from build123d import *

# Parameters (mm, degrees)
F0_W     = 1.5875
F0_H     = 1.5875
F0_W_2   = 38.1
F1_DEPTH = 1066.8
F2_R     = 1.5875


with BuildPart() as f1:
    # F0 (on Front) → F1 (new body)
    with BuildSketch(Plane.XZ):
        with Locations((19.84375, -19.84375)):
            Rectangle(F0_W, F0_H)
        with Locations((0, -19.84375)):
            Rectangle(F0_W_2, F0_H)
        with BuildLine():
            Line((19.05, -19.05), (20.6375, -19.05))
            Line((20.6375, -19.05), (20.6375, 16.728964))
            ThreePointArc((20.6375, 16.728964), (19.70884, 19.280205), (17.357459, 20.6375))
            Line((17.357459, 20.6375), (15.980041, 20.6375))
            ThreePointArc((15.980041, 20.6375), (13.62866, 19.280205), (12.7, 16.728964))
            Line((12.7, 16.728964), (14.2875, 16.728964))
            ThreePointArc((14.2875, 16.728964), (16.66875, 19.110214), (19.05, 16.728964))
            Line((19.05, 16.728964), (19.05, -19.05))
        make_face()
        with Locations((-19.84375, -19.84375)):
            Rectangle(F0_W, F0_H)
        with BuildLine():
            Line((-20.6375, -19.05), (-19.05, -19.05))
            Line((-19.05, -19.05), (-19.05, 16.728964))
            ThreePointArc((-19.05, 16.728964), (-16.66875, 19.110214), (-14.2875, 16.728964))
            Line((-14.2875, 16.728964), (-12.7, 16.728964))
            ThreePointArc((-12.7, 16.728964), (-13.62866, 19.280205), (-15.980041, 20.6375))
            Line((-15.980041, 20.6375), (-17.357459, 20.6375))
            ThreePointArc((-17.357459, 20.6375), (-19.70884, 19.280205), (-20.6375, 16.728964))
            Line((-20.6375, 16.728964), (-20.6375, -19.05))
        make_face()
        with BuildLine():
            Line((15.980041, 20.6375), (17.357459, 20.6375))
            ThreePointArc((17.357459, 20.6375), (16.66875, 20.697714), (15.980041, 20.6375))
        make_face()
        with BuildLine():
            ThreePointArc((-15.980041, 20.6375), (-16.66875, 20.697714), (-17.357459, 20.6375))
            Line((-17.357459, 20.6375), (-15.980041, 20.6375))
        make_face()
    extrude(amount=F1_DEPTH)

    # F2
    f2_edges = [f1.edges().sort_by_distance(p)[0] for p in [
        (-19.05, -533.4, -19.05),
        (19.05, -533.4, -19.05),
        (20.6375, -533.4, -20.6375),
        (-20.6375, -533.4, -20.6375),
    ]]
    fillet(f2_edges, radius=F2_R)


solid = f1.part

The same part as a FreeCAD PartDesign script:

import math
import FreeCAD as App
import Part
import Sketcher
Q = App.Units.Quantity


def edges_at(feature, points):
    """Names of the edges that pass closest to the given points."""
    edges = feature.Shape.Edges
    near = lambda p: min(range(len(edges)), key=lambda i: edges[i].distToShape(Part.Vertex(*p))[0])
    return sorted({f"Edge{near(p) + 1}" for p in points})

doc = App.newDocument("Part")
body = doc.addObject("PartDesign::Body", "Body")

# Sketch on XZ plane
sketch1 = doc.addObject("Sketcher::SketchObject", "Sketch")
body.addObject(sketch1)
sketch1.AttachmentSupport = (doc.XZ_Plane, [""])
sketch1.MapMode = "FlatFace"
sketch1.addGeometry([
    Part.LineSegment(App.Vector(20.6375, -20.6375, 0), App.Vector(20.6375, 16.728964, 0)),  # 0
    Part.ArcOfCircle(Part.Circle(App.Vector(16.668751, 16.728965, 0), App.Vector(0, 0, 1), 3.968749), math.radians(-0.00001), math.radians(80.006718)),  # 1
    Part.ArcOfCircle(Part.Circle(App.Vector(16.66875, 16.728987, 0), App.Vector(0, 0, 1), 3.968727), math.radians(80.006643), math.radians(99.993357)),  # 2
    Part.ArcOfCircle(Part.Circle(App.Vector(16.668749, 16.728965, 0), App.Vector(0, 0, 1), 3.968749), math.radians(99.993282), math.radians(180.00001)),  # 3
    Part.LineSegment(App.Vector(12.7, 16.728964, 0), App.Vector(14.2875, 16.728964, 0)),  # 4
    Part.ArcOfCircle(Part.Circle(App.Vector(16.66875, 16.728964, 0), App.Vector(0, 0, 1), 2.38125), math.radians(0), math.radians(180)),  # 5
    Part.LineSegment(App.Vector(19.05, 16.728964, 0), App.Vector(19.05, -19.05, 0)),  # 6
    Part.LineSegment(App.Vector(19.05, -19.05, 0), App.Vector(-19.05, -19.05, 0)),  # 7
    Part.LineSegment(App.Vector(-19.05, -19.05, 0), App.Vector(-19.05, 16.728964, 0)),  # 8
    Part.ArcOfCircle(Part.Circle(App.Vector(-16.66875, 16.728964, 0), App.Vector(0, 0, 1), 2.38125), math.radians(0), math.radians(180)),  # 9
    Part.LineSegment(App.Vector(-14.2875, 16.728964, 0), App.Vector(-12.7, 16.728964, 0)),  # 10
    Part.ArcOfCircle(Part.Circle(App.Vector(-16.668749, 16.728965, 0), App.Vector(0, 0, 1), 3.968749), math.radians(-0.00001), math.radians(80.006718)),  # 11
    Part.ArcOfCircle(Part.Circle(App.Vector(-16.66875, 16.728987, 0), App.Vector(0, 0, 1), 3.968727), math.radians(80.006643), math.radians(99.993357)),  # 12
    Part.ArcOfCircle(Part.Circle(App.Vector(-16.668751, 16.728965, 0), App.Vector(0, 0, 1), 3.968749), math.radians(99.993282), math.radians(180.00001)),  # 13
    Part.LineSegment(App.Vector(-20.6375, 16.728964, 0), App.Vector(-20.6375, -20.6375, 0)),  # 14
    Part.LineSegment(App.Vector(-20.6375, -20.6375, 0), App.Vector(20.6375, -20.6375, 0)),  # 15
], False)
sketch1.addConstraint([
    Sketcher.Constraint("Coincident", 0, 2, 1, 1),
    Sketcher.Constraint("Coincident", 1, 2, 2, 1),
    Sketcher.Constraint("Coincident", 2, 2, 3, 1),
    Sketcher.Constraint("Coincident", 3, 2, 4, 1),
    Sketcher.Constraint("Coincident", 4, 2, 5, 2),
    Sketcher.Constraint("Coincident", 5, 1, 6, 1),
    Sketcher.Constraint("Coincident", 6, 2, 7, 1),
    Sketcher.Constraint("Coincident", 7, 2, 8, 1),
    Sketcher.Constraint("Coincident", 8, 2, 9, 2),
    Sketcher.Constraint("Coincident", 9, 1, 10, 1),
    Sketcher.Constraint("Coincident", 10, 2, 11, 1),
    Sketcher.Constraint("Coincident", 11, 2, 12, 1),
    Sketcher.Constraint("Coincident", 12, 2, 13, 1),
    Sketcher.Constraint("Coincident", 13, 2, 14, 1),
    Sketcher.Constraint("Coincident", 14, 2, 15, 1),
    Sketcher.Constraint("Coincident", 15, 2, 0, 1),
    Sketcher.Constraint("Vertical", 0),
    Sketcher.Constraint("Horizontal", 4),
    Sketcher.Constraint("Vertical", 6),
    Sketcher.Constraint("Horizontal", 7),
    Sketcher.Constraint("Vertical", 8),
    Sketcher.Constraint("Horizontal", 10),
    Sketcher.Constraint("Vertical", 14),
    Sketcher.Constraint("Horizontal", 15),
    Sketcher.Constraint("Coincident", 3, 3, 1, 3),
    Sketcher.Constraint("Coincident", 5, 3, 1, 3),
    Sketcher.Constraint("Coincident", 11, 3, 9, 3),
    Sketcher.Constraint("Coincident", 13, 3, 9, 3),
    Sketcher.Constraint("DistanceX", 7, 2, 7, 1, Q("1.5 in")),
    Sketcher.Constraint("Radius", 1, Q("0.1562499 in")),
    Sketcher.Constraint("Radius", 3, Q("0.1562499 in")),
    Sketcher.Constraint("Radius", 5, Q("0.09375 in")),
    Sketcher.Constraint("Radius", 9, Q("0.09375 in")),
    Sketcher.Constraint("Radius", 11, Q("0.1562499 in")),
    Sketcher.Constraint("Radius", 13, Q("0.1562499 in")),
    Sketcher.Constraint("DistanceX", -1, 1, 3, 2, Q("0.5 in")),
    Sketcher.Constraint("DistanceY", 6, 2, -1, 1, Q("0.75 in")),
    Sketcher.Constraint("DistanceY", -1, 1, 1, 2, Q("0.8125 in")),
    Sketcher.Constraint("DistanceY", -1, 1, 2, 2, Q("0.8125 in")),
    Sketcher.Constraint("DistanceY", -1, 1, 11, 2, Q("0.8125 in")),
    Sketcher.Constraint("DistanceY", -1, 1, 12, 2, Q("0.8125 in")),
    Sketcher.Constraint("DistanceY", 14, 2, -1, 1, Q("0.8125 in")),
    Sketcher.Constraint("Radius", 2, Q("3.968727 mm")),
    Sketcher.Constraint("Radius", 12, Q("3.968727 mm")),
    Sketcher.Constraint("DistanceY", 0, 1, 0, 2, Q("37.366464 mm")),
    Sketcher.Constraint("DistanceY", 6, 2, 6, 1, Q("35.778964 mm")),
    Sketcher.Constraint("DistanceY", 8, 1, 8, 2, Q("35.778964 mm")),
    Sketcher.Constraint("DistanceY", 14, 2, 14, 1, Q("37.366464 mm")),
    Sketcher.Constraint("DistanceX", -1, 1, 1, 2, Q("17.357459 mm")),
    Sketcher.Constraint("DistanceX", 11, 2, -1, 1, Q("15.980041 mm")),
    Sketcher.Constraint("DistanceY", -1, 1, 3, 2, Q("16.728964 mm")),
    Sketcher.Constraint("DistanceY", -1, 1, 9, 1, Q("16.728964 mm")),
])
pad1 = doc.addObject("PartDesign::Pad", "Pad")
body.addObject(pad1)
pad1.Profile = sketch1
pad1.Length = Q("42 in")
doc.recompute()

fillet = doc.addObject("PartDesign::Fillet", "Fillet")
body.addObject(fillet)
fillet.Base = (pad1, edges_at(pad1, [
    (-19.05, -533.4, -19.05),
    (19.05, -533.4, -19.05),
    (20.637, -533.4, -20.637),
    (-20.637, -533.4, -20.637),
]))
fillet.Radius = Q("0.0625 in")

doc.recompute()
